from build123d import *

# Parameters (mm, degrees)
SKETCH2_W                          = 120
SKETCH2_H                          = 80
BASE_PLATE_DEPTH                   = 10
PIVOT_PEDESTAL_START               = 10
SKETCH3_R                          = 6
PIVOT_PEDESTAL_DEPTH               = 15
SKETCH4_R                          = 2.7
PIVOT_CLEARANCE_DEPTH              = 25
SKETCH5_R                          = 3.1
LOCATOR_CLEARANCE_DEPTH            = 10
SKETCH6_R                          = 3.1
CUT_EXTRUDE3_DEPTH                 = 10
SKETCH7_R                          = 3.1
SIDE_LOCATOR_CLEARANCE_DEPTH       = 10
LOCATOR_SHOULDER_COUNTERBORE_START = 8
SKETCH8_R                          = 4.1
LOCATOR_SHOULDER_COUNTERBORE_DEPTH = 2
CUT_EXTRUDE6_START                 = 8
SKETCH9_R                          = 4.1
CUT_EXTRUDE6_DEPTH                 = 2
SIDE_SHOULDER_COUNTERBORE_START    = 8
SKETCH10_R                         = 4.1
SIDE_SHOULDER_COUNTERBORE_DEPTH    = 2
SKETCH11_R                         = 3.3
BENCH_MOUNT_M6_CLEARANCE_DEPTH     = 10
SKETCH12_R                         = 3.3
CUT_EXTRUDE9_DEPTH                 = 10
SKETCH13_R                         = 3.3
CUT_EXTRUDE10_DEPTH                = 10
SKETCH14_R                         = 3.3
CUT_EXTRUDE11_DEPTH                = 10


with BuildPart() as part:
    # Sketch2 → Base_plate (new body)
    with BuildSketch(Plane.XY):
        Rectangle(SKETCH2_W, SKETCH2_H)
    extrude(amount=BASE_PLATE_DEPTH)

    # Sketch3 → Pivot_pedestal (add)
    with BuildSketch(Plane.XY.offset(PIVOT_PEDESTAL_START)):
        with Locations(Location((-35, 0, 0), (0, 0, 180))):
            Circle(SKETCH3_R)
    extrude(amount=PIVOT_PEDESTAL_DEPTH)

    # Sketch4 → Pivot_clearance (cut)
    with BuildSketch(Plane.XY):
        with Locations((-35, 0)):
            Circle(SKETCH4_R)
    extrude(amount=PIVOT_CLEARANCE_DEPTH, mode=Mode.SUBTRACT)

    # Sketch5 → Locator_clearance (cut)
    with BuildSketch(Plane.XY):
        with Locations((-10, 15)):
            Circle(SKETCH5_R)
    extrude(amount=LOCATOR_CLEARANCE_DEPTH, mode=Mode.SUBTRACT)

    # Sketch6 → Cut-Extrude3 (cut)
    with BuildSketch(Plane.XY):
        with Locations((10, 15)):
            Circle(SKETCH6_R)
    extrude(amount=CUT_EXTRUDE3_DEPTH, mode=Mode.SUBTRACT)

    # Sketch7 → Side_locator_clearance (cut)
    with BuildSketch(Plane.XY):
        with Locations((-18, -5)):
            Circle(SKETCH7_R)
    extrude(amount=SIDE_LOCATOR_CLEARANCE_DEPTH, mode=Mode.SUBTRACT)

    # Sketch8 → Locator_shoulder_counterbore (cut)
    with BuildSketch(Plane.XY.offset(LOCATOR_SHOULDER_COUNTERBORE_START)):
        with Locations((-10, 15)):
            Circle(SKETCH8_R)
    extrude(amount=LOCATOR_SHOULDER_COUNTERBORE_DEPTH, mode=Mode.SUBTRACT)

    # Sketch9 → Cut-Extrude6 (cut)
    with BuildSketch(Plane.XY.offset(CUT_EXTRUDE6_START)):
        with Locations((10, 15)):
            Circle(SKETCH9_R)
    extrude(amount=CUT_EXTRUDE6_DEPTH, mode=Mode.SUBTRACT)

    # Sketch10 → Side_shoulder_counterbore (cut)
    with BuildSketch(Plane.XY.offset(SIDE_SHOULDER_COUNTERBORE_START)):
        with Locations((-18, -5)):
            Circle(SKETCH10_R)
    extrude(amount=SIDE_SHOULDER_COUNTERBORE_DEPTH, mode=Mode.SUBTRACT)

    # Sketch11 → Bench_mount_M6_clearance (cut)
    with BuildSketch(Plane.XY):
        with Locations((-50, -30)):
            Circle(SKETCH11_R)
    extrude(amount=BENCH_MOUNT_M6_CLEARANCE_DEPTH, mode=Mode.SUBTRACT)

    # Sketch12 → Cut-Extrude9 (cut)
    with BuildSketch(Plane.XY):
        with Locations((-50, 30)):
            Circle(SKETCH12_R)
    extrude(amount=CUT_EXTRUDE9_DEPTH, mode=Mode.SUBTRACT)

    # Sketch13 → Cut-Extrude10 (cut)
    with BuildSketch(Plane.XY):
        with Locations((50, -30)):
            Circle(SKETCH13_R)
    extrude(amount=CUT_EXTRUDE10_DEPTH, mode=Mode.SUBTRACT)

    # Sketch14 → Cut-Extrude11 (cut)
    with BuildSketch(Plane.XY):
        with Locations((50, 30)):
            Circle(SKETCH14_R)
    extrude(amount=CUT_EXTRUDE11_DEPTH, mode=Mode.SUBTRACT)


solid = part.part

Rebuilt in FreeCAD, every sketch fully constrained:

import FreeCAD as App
import Part
import Sketcher

V = App.Vector

doc = App.newDocument("Part")
body = doc.addObject("PartDesign::Body", "Body")

# Sketch on XY plane
sketch1 = body.newObject("Sketcher::SketchObject", "Sketch")
sketch1.AttachmentSupport = (doc.getObject("XY_Plane"), [""])
sketch1.MapMode = "FlatFace"
sketch1.addGeometry([
    Part.LineSegment(V(-60, 40, 0), V(-60, -40, 0)),
    Part.LineSegment(V(-60, -40, 0), V(60, -40, 0)),
    Part.LineSegment(V(60, -40, 0), V(60, 40, 0)),
    Part.LineSegment(V(60, 40, 0), V(-60, 40, 0)),
], False)
sketch1.addConstraint([
    Sketcher.Constraint("Coincident", 0, 2, 1, 1),
    Sketcher.Constraint("Coincident", 1, 2, 2, 1),
    Sketcher.Constraint("Coincident", 2, 2, 3, 1),
    Sketcher.Constraint("Coincident", 3, 2, 0, 1),
    Sketcher.Constraint("Vertical", 0),
    Sketcher.Constraint("Horizontal", 1),
    Sketcher.Constraint("Vertical", 2),
    Sketcher.Constraint("Horizontal", 3),
    Sketcher.Constraint("Symmetric", 0, 2, 2, 2, -1, 1),
    Sketcher.Constraint("DistanceX", 1, 1, 1, 2, 120.0),
    Sketcher.Constraint("DistanceY", 0, 2, 0, 1, 80.0),
])
pad1 = body.newObject("PartDesign::Pad", "Pad")
pad1.Profile = sketch1
pad1.Length = 10

# Sketch on XY plane
sketch2 = body.newObject("Sketcher::SketchObject", "Sketch001")
sketch2.AttachmentSupport = (doc.getObject("XY_Plane"), [""])
sketch2.MapMode = "FlatFace"
sketch2.AttachmentOffset = App.Placement(V(0, 0, 10), App.Rotation())
sketch2.addGeometry(Part.Circle(V(-35, 0, 0), V(0, 0, 1), 6), False)
sketch2.addConstraint([
    Sketcher.Constraint("PointOnObject", 0, 3, -1),
    Sketcher.Constraint("Diameter", 0, 12.0),
    Sketcher.Constraint("DistanceX", 0, 3, -1, 1, 35.0),
])
pad2 = body.newObject("PartDesign::Pad", "Pad001")
pad2.Profile = sketch2
pad2.Length = 15

# Sketch on XY plane
sketch3 = body.newObject("Sketcher::SketchObject", "Sketch002")
sketch3.AttachmentSupport = (doc.getObject("XY_Plane"), [""])
sketch3.MapMode = "FlatFace"
sketch3.addGeometry(Part.Circle(V(-35, 0, 0), V(0, 0, 1), 2.7), False)
sketch3.addConstraint([
    Sketcher.Constraint("PointOnObject", 0, 3, -1),
    Sketcher.Constraint("Diameter", 0, 5.4),
    Sketcher.Constraint("DistanceX", 0, 3, -1, 1, 35.0),
])
pocket1 = body.newObject("PartDesign::Pocket", "Pocket")
pocket1.Profile = sketch3
pocket1.Length = 25
pocket1.Reversed = True

# Sketch on XY plane
sketch4 = body.newObject("Sketcher::SketchObject", "Sketch003")
sketch4.AttachmentSupport = (doc.getObject("XY_Plane"), [""])
sketch4.MapMode = "FlatFace"
sketch4.addGeometry(Part.Circle(V(-10, 15, 0), V(0, 0, 1), 3.1), False)
sketch4.addConstraint([
    Sketcher.Constraint("Diameter", 0, 6.2),
    Sketcher.Constraint("DistanceX", 0, 3, -1, 1, 10.0),
    Sketcher.Constraint("DistanceY", -1, 1, 0, 3, 15.0),
])
pocket2 = body.newObject("PartDesign::Pocket", "Pocket001")
pocket2.Profile = sketch4
pocket2.Length = 10
pocket2.Reversed = True

# Sketch on XY plane
sketch5 = body.newObject("Sketcher::SketchObject", "Sketch004")
sketch5.AttachmentSupport = (doc.getObject("XY_Plane"), [""])
sketch5.MapMode = "FlatFace"
sketch5.addGeometry(Part.Circle(V(10, 15, 0), V(0, 0, 1), 3.1), False)
sketch5.addConstraint([
    Sketcher.Constraint("Diameter", 0, 6.2),
    Sketcher.Constraint("DistanceX", -1, 1, 0, 3, 10.0),
    Sketcher.Constraint("DistanceY", -1, 1, 0, 3, 15.0),
])
pocket3 = body.newObject("PartDesign::Pocket", "Pocket002")
pocket3.Profile = sketch5
pocket3.Length = 10
pocket3.Reversed = True

# Sketch on XY plane
sketch6 = body.newObject("Sketcher::SketchObject", "Sketch005")
sketch6.AttachmentSupport = (doc.getObject("XY_Plane"), [""])
sketch6.MapMode = "FlatFace"
sketch6.addGeometry(Part.Circle(V(-18, -5, 0), V(0, 0, 1), 3.1), False)
sketch6.addConstraint([
    Sketcher.Constraint("Diameter", 0, 6.2),
    Sketcher.Constraint("DistanceX", 0, 3, -1, 1, 18.0),
    Sketcher.Constraint("DistanceY", 0, 3, -1, 1, 5.0),
])
pocket4 = body.newObject("PartDesign::Pocket", "Pocket003")
pocket4.Profile = sketch6
pocket4.Length = 10
pocket4.Reversed = True

# Sketch on XY plane
sketch7 = body.newObject("Sketcher::SketchObject", "Sketch006")
sketch7.AttachmentSupport = (doc.getObject("XY_Plane"), [""])
sketch7.MapMode = "FlatFace"
sketch7.AttachmentOffset = App.Placement(V(0, 0, 8), App.Rotation())
sketch7.addGeometry(Part.Circle(V(-10, 15, 0), V(0, 0, 1), 4.1), False)
sketch7.addConstraint([
    Sketcher.Constraint("Diameter", 0, 8.2),
    Sketcher.Constraint("DistanceX", 0, 3, -1, 1, 10.0),
    Sketcher.Constraint("DistanceY", -1, 1, 0, 3, 15.0),
])
pocket5 = body.newObject("PartDesign::Pocket", "Pocket004")
pocket5.Profile = sketch7
pocket5.Length = 2
pocket5.Reversed = True

# Sketch on XY plane
sketch8 = body.newObject("Sketcher::SketchObject", "Sketch007")
sketch8.AttachmentSupport = (doc.getObject("XY_Plane"), [""])
sketch8.MapMode = "FlatFace"
sketch8.AttachmentOffset = App.Placement(V(0, 0, 8), App.Rotation())
sketch8.addGeometry(Part.Circle(V(10, 15, 0), V(0, 0, 1), 4.1), False)
sketch8.addConstraint([
    Sketcher.Constraint("Diameter", 0, 8.2),
    Sketcher.Constraint("DistanceX", -1, 1, 0, 3, 10.0),
    Sketcher.Constraint("DistanceY", -1, 1, 0, 3, 15.0),
])
pocket6 = body.newObject("PartDesign::Pocket", "Pocket005")
pocket6.Profile = sketch8
pocket6.Length = 2
pocket6.Reversed = True

# Sketch on XY plane
sketch9 = body.newObject("Sketcher::SketchObject", "Sketch008")
sketch9.AttachmentSupport = (doc.getObject("XY_Plane"), [""])
sketch9.MapMode = "FlatFace"
sketch9.AttachmentOffset = App.Placement(V(0, 0, 8), App.Rotation())
sketch9.addGeometry(Part.Circle(V(-18, -5, 0), V(0, 0, 1), 4.1), False)
sketch9.addConstraint([
    Sketcher.Constraint("Diameter", 0, 8.2),
    Sketcher.Constraint("DistanceX", 0, 3, -1, 1, 18.0),
    Sketcher.Constraint("DistanceY", 0, 3, -1, 1, 5.0),
])
pocket7 = body.newObject("PartDesign::Pocket", "Pocket006")
pocket7.Profile = sketch9
pocket7.Length = 2
pocket7.Reversed = True

# Sketch on XY plane
sketch10 = body.newObject("Sketcher::SketchObject", "Sketch009")
sketch10.AttachmentSupport = (doc.getObject("XY_Plane"), [""])
sketch10.MapMode = "FlatFace"
sketch10.addGeometry(Part.Circle(V(-50, -30, 0), V(0, 0, 1), 3.3), False)
sketch10.addConstraint([
    Sketcher.Constraint("Diameter", 0, 6.6),
    Sketcher.Constraint("DistanceX", 0, 3, -1, 1, 50.0),
    Sketcher.Constraint("DistanceY", 0, 3, -1, 1, 30.0),
])
pocket8 = body.newObject("PartDesign::Pocket", "Pocket007")
pocket8.Profile = sketch10
pocket8.Length = 10
pocket8.Reversed = True

# Sketch on XY plane
sketch11 = body.newObject("Sketcher::SketchObject", "Sketch010")
sketch11.AttachmentSupport = (doc.getObject("XY_Plane"), [""])
sketch11.MapMode = "FlatFace"
sketch11.addGeometry(Part.Circle(V(-50, 30, 0), V(0, 0, 1), 3.3), False)
sketch11.addConstraint([
    Sketcher.Constraint("Diameter", 0, 6.6),
    Sketcher.Constraint("DistanceX", 0, 3, -1, 1, 50.0),
    Sketcher.Constraint("DistanceY", -1, 1, 0, 3, 30.0),
])
pocket9 = body.newObject("PartDesign::Pocket", "Pocket008")
pocket9.Profile = sketch11
pocket9.Length = 10
pocket9.Reversed = True

# Sketch on XY plane
sketch12 = body.newObject("Sketcher::SketchObject", "Sketch011")
sketch12.AttachmentSupport = (doc.getObject("XY_Plane"), [""])
sketch12.MapMode = "FlatFace"
sketch12.addGeometry(Part.Circle(V(50, -30, 0), V(0, 0, 1), 3.3), False)
sketch12.addConstraint([
    Sketcher.Constraint("Diameter", 0, 6.6),
    Sketcher.Constraint("DistanceX", -1, 1, 0, 3, 50.0),
    Sketcher.Constraint("DistanceY", 0, 3, -1, 1, 30.0),
])
pocket10 = body.newObject("PartDesign::Pocket", "Pocket009")
pocket10.Profile = sketch12
pocket10.Length = 10
pocket10.Reversed = True

# Sketch on XY plane
sketch13 = body.newObject("Sketcher::SketchObject", "Sketch012")
sketch13.AttachmentSupport = (doc.getObject("XY_Plane"), [""])
sketch13.MapMode = "FlatFace"
sketch13.addGeometry(Part.Circle(V(50, 30, 0), V(0, 0, 1), 3.3), False)
sketch13.addConstraint([
    Sketcher.Constraint("Diameter", 0, 6.6),
    Sketcher.Constraint("DistanceX", -1, 1, 0, 3, 50.0),
    Sketcher.Constraint("DistanceY", -1, 1, 0, 3, 30.0),
])
pocket11 = body.newObject("PartDesign::Pocket", "Pocket010")
pocket11.Profile = sketch13
pocket11.Length = 10
pocket11.Reversed = True

doc.recompute()
